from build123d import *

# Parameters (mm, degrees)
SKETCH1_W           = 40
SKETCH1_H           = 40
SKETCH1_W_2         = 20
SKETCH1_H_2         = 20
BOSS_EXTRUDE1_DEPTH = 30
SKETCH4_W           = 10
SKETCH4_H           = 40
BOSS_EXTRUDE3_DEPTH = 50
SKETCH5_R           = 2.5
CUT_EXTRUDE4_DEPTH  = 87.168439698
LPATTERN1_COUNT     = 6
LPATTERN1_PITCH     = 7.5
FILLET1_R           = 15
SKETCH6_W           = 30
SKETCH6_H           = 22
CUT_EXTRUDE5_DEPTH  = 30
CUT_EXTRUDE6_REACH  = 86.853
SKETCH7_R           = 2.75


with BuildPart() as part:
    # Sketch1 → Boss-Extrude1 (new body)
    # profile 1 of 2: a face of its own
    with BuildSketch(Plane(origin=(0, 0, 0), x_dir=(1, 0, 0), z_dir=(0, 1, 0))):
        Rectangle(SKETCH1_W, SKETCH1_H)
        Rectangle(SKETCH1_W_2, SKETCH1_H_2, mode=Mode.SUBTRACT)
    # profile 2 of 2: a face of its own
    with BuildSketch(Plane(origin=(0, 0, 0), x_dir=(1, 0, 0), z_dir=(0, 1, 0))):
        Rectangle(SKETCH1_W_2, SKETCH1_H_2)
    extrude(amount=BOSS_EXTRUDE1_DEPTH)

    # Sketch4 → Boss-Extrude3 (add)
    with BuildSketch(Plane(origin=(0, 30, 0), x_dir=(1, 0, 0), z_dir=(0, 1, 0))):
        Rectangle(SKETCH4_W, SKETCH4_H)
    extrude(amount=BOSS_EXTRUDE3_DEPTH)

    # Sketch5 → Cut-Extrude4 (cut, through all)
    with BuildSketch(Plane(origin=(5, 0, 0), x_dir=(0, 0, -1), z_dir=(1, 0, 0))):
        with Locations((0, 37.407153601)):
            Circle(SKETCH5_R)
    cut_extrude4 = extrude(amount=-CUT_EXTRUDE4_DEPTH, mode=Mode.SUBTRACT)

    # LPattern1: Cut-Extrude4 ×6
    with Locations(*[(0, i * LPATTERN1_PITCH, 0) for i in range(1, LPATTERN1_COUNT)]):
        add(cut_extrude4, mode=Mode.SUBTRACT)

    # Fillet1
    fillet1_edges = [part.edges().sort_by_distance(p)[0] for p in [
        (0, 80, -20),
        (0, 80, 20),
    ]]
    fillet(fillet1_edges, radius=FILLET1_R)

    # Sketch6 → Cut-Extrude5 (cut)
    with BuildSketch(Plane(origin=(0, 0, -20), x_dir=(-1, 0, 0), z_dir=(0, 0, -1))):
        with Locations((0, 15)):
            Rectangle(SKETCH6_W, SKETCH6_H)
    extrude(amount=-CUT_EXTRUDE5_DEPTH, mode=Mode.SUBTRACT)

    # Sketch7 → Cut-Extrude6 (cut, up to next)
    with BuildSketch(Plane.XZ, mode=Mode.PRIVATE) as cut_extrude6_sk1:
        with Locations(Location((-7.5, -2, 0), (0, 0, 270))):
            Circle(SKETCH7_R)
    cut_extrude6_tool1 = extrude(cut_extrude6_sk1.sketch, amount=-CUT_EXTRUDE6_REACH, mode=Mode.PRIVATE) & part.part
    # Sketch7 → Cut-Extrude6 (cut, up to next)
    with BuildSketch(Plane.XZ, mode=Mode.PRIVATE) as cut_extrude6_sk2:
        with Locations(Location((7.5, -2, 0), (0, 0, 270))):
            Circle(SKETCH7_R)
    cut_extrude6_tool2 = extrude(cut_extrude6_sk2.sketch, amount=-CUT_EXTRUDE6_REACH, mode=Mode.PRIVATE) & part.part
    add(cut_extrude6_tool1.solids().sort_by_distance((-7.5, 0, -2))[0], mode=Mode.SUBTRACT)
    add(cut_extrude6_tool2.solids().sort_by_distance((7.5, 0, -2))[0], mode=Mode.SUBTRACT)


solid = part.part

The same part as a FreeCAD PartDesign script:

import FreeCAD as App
import Part
import Sketcher
from FreeCAD import Vector
Q = App.Units.Quantity


def edges_at(feature, points):
    """Names of the edges that pass closest to the given points."""
    edges = feature.Shape.Edges
    near = lambda p: min(range(len(edges)), key=lambda i: edges[i].distToShape(Part.Vertex(*p))[0])
    return sorted({f"Edge{near(p) + 1}" for p in points})

doc = App.newDocument("Part")
body = doc.addObject("PartDesign::Body", "Body")

# Sketch on XZ plane
sketch1 = body.newObject("Sketcher::SketchObject", "Sketch")
sketch1.AttachmentSupport = (doc.getObject("XZ_Plane"), [""])
sketch1.MapMode = "FlatFace"
sketch1.addGeometry([
    Part.LineSegment(Vector(-20, -20, 0), Vector(-20, 20, 0)),
    Part.LineSegment(Vector(-20, 20, 0), Vector(20, 20, 0)),
    Part.LineSegment(Vector(20, 20, 0), Vector(20, -20, 0)),
    Part.LineSegment(Vector(20, -20, 0), Vector(-20, -20, 0)),
], False)
sketch1.addConstraint([
    Sketcher.Constraint("Coincident", 0, 2, 1, 1),
    Sketcher.Constraint("Coincident", 1, 2, 2, 1),
    Sketcher.Constraint("Coincident", 2, 2, 3, 1),
    Sketcher.Constraint("Coincident", 3, 2, 0, 1),
    Sketcher.Constraint("Vertical", 0),
    Sketcher.Constraint("Horizontal", 1),
    Sketcher.Constraint("Vertical", 2),
    Sketcher.Constraint("Horizontal", 3),
    Sketcher.Constraint("Symmetric", 0, 2, 2, 2, -1, 1),
    Sketcher.Constraint("Equal", 3, 0),
    Sketcher.Constraint("DistanceX", 1, 1, 1, 2, Q("40 mm")),
])
pad1 = body.newObject("PartDesign::Pad", "Pad")
pad1.Profile = sketch1
pad1.Length = 30
pad1.Reversed = True

# Sketch on XZ plane
sketch2 = body.newObject("Sketcher::SketchObject", "Sketch001")
sketch2.AttachmentSupport = (doc.getObject("XZ_Plane"), [""])
sketch2.MapMode = "FlatFace"
sketch2.AttachmentOffset = App.Placement(Vector(0, 0, -30), App.Rotation())
sketch2.addGeometry([
    Part.LineSegment(Vector(-5, -20, 0), Vector(-5, 20, 0)),
    Part.LineSegment(Vector(-5, 20, 0), Vector(5, 20, 0)),
    Part.LineSegment(Vector(5, 20, 0), Vector(5, -20, 0)),
    Part.LineSegment(Vector(5, -20, 0), Vector(-5, -20, 0)),
], False)
sketch2.addConstraint([
    Sketcher.Constraint("Coincident", 0, 2, 1, 1),
    Sketcher.Constraint("Coincident", 1, 2, 2, 1),
    Sketcher.Constraint("Coincident", 2, 2, 3, 1),
    Sketcher.Constraint("Coincident", 3, 2, 0, 1),
    Sketcher.Constraint("Vertical", 0),
    Sketcher.Constraint("Horizontal", 1),
    Sketcher.Constraint("Vertical", 2),
    Sketcher.Constraint("Horizontal", 3),
    Sketcher.Constraint("Symmetric", 0, 2, 2, 2, -1, 1),
    Sketcher.Constraint("DistanceX", 1, 1, 1, 2, Q("10 mm")),
    Sketcher.Constraint("DistanceY", 0, 1, 0, 2, Q("40 mm")),
])
pad2 = body.newObject("PartDesign::Pad", "Pad001")
pad2.Profile = sketch2
pad2.Length = 50
pad2.Reversed = True

# Sketch on YZ plane
sketch3 = body.newObject("Sketcher::SketchObject", "Sketch002")
sketch3.AttachmentSupport = (doc.getObject("YZ_Plane"), [""])
sketch3.MapMode = "FlatFace"
sketch3.AttachmentOffset = App.Placement(Vector(0, 0, 5), App.Rotation())
sketch3.addGeometry(Part.Circle(Vector(37.4, 0, 0), Vector(0, 0, 1), 2.5), False)
sketch3.addConstraint([
    Sketcher.Constraint("PointOnObject", 0, 3, -1),
    Sketcher.Constraint("Diameter", 0, Q("5 mm")),
    Sketcher.Constraint("DistanceX", -1, 1, 0, 3, Q("37.407154 mm")),
])
pocket1 = body.newObject("PartDesign::Pocket", "Pocket")
pocket1.Profile = sketch3
pocket1.Type = "ThroughAll"
doc.recompute()

linearpattern = body.newObject("PartDesign::LinearPattern", "LinearPattern")
linearpattern.Originals = [pocket1]
linearpattern.Direction = (doc.getObject("Y_Axis"), [""])
linearpattern.Mode = "offset"
linearpattern.Offset = 7.5
linearpattern.Occurrences = 6
body.Tip = linearpattern
doc.recompute()

fillet = body.newObject("PartDesign::Fillet", "Fillet")
fillet.Base = (linearpattern, edges_at(linearpattern, [(0, 80, -20), (0, 80, 20)]))
fillet.Radius = 15

# Sketch on XY plane
sketch4 = body.newObject("Sketcher::SketchObject", "Sketch003")
sketch4.AttachmentSupport = (doc.getObject("XY_Plane"), [""])
sketch4.MapMode = "FlatFace"
sketch4.AttachmentOffset = App.Placement(Vector(0, 0, -20), App.Rotation())
sketch4.addGeometry([
    Part.LineSegment(Vector(15, 26, 0), Vector(15, 4, 0)),
    Part.LineSegment(Vector(15, 4, 0), Vector(-15, 4, 0)),
    Part.LineSegment(Vector(-15, 4, 0), Vector(-15, 26, 0)),
    Part.LineSegment(Vector(-15, 26, 0), Vector(15, 26, 0)),
], False)
sketch4.addConstraint([
    Sketcher.Constraint("Coincident", 0, 2, 1, 1),
    Sketcher.Constraint("Coincident", 1, 2, 2, 1),
    Sketcher.Constraint("Coincident", 2, 2, 3, 1),
    Sketcher.Constraint("Coincident", 3, 2, 0, 1),
    Sketcher.Constraint("Vertical", 0),
    Sketcher.Constraint("Horizontal", 1),
    Sketcher.Constraint("Vertical", 2),
    Sketcher.Constraint("Horizontal", 3),
    Sketcher.Constraint("DistanceX", 1, 2, 1, 1, Q("30 mm")),
    Sketcher.Constraint("DistanceY", 0, 2, 0, 1, Q("22 mm")),
    Sketcher.Constraint("DistanceX", -1, 1, 0, 2, Q("15 mm")),
    Sketcher.Constraint("DistanceY", -1, 1, 0, 2, Q("4 mm")),
])
pocket2 = body.newObject("PartDesign::Pocket", "Pocket001")
pocket2.Profile = sketch4
pocket2.Length = 30
pocket2.Reversed = True

# Sketch on XZ plane
sketch5 = body.newObject("Sketcher::SketchObject", "Sketch004")
sketch5.AttachmentSupport = (doc.getObject("XZ_Plane"), [""])
sketch5.MapMode = "FlatFace"
sketch5.addGeometry(Part.Circle(Vector(-7.5, -2, 0), Vector(0, 0, 1), 2.8), False)
sketch5.addConstraint([
    Sketcher.Constraint("Diameter", 0, Q("5.5 mm")),
    Sketcher.Constraint("DistanceY", 0, 3, -1, 1, Q("2 mm")),
    Sketcher.Constraint("DistanceX", 0, 3, -1, 1, Q("7.5 mm")),
])
pocket3 = body.newObject("PartDesign::Pocket", "Pocket002")
pocket3.Profile = sketch5
pocket3.Type = "UpToFirst"

# Sketch on XZ plane
sketch6 = body.newObject("Sketcher::SketchObject", "Sketch005")
sketch6.AttachmentSupport = (doc.getObject("XZ_Plane"), [""])
sketch6.MapMode = "FlatFace"
sketch6.addGeometry(Part.Circle(Vector(7.5, -2, 0), Vector(0, 0, 1), 2.8), False)
sketch6.addConstraint([
    Sketcher.Constraint("Diameter", 0, Q("5.5 mm")),
    Sketcher.Constraint("DistanceY", 0, 3, -1, 1, Q("2 mm")),
    Sketcher.Constraint("DistanceX", -1, 1, 0, 3, Q("7.5 mm")),
])
pocket4 = body.newObject("PartDesign::Pocket", "Pocket003")
pocket4.Profile = sketch6
pocket4.Type = "UpToFirst"

doc.recompute()
